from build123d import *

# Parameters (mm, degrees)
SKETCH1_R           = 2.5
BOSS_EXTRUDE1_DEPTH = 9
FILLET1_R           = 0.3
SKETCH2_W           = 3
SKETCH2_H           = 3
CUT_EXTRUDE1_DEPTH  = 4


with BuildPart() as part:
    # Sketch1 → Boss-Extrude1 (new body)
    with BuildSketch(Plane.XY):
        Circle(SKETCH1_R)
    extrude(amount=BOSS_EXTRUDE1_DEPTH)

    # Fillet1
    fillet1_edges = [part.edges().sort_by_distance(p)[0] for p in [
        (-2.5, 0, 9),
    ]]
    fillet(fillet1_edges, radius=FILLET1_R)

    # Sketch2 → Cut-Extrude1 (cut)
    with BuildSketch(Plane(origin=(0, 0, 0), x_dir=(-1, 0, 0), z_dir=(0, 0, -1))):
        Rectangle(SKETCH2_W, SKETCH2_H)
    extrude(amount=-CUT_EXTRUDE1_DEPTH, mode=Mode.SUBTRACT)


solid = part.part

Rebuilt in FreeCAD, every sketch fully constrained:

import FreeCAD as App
import Part
import Sketcher
from FreeCAD import Vector
Q = App.Units.Quantity


def edges_at(feature, points):
    """Names of the edges that pass closest to the given points."""
    edges = feature.Shape.Edges
    near = lambda p: min(range(len(edges)), key=lambda i: edges[i].distToShape(Part.Vertex(*p))[0])
    return sorted({f"Edge{near(p) + 1}" for p in points})

doc = App.newDocument("Part")
body = doc.addObject("PartDesign::Body", "Body")

# Sketch on XY plane
sketch1 = doc.addObject("Sketcher::SketchObject", "Sketch")
body.addObject(sketch1)
sketch1.AttachmentSupport = (doc.XY_Plane, [""])
sketch1.MapMode = "FlatFace"
sketch1.addGeometry(Part.Circle(Vector(0, 0, 0), Vector(0, 0, 1), 2.5), False)
sketch1.addConstraint([
    Sketcher.Constraint("Coincident", 0, 3, -1, 1),
    Sketcher.Constraint("Diameter", 0, Q("5 mm")),
])
pad1 = doc.addObject("PartDesign::Pad", "Pad")
body.addObject(pad1)
pad1.Profile = sketch1
pad1.Length = 9
doc.recompute()

fillet = doc.addObject("PartDesign::Fillet", "Fillet")
body.addObject(fillet)
fillet.Base = (pad1, edges_at(pad1, [(-2.5, 0, 9)]))
fillet.Radius = 0.3

# Sketch on XY plane
sketch2 = doc.addObject("Sketcher::SketchObject", "Sketch001")
body.addObject(sketch2)
sketch2.AttachmentSupport = (doc.XY_Plane, [""])
sketch2.MapMode = "FlatFace"
sketch2.addGeometry([
    Part.LineSegment(Vector(1.5, 1.5, 0), Vector(1.5, -1.5, 0)),
    Part.LineSegment(Vector(1.5, -1.5, 0), Vector(-1.5, -1.5, 0)),
    Part.LineSegment(Vector(-1.5, -1.5, 0), Vector(-1.5, 1.5, 0)),
    Part.LineSegment(Vector(-1.5, 1.5, 0), Vector(1.5, 1.5, 0)),
], False)
sketch2.addConstraint([
    Sketcher.Constraint("Coincident", 0, 2, 1, 1),
    Sketcher.Constraint("Coincident", 1, 2, 2, 1),
    Sketcher.Constraint("Coincident", 2, 2, 3, 1),
    Sketcher.Constraint("Coincident", 3, 2, 0, 1),
    Sketcher.Constraint("Vertical", 0),
    Sketcher.Constraint("Horizontal", 1),
    Sketcher.Constraint("Vertical", 2),
    Sketcher.Constraint("Horizontal", 3),
    Sketcher.Constraint("Symmetric", 0, 2, 2, 2, -1, 1),
    Sketcher.Constraint("Equal", 3, 0),
    Sketcher.Constraint("DistanceX", 1, 2, 1, 1, Q("3 mm")),
])
pocket1 = doc.addObject("PartDesign::Pocket", "Pocket")
body.addObject(pocket1)
pocket1.Profile = sketch2
pocket1.Length = 4
pocket1.Reversed = True

doc.recompute()
